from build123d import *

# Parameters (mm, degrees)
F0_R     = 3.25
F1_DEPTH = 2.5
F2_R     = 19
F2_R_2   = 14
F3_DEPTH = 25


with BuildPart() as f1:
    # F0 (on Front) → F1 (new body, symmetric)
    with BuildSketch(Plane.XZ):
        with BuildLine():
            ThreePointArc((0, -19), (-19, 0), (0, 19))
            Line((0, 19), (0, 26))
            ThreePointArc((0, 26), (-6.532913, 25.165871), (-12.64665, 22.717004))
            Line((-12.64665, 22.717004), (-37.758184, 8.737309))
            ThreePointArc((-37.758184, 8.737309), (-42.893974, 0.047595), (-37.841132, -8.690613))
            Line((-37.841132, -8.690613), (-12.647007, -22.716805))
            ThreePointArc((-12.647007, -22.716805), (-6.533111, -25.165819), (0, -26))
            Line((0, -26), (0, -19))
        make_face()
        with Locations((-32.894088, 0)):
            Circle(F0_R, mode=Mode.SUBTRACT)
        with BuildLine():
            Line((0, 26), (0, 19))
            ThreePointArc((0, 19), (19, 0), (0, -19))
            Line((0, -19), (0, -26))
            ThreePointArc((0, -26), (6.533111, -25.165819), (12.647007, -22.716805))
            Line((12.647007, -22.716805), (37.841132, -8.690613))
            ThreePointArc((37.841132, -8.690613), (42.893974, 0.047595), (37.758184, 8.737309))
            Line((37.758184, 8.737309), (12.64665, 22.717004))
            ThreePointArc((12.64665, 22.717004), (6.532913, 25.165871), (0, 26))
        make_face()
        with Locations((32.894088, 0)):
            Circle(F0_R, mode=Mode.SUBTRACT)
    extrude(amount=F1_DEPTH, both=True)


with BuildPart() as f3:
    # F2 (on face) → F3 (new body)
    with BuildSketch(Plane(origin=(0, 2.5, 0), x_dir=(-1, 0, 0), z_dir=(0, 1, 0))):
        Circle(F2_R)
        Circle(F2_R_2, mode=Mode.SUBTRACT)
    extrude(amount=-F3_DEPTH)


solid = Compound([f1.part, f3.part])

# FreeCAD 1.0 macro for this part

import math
import FreeCAD as App
import Part
import Sketcher

doc = App.newDocument("Part")
body = doc.addObject("PartDesign::Body", "Body")

sketch1 = body.newObject("Sketcher::SketchObject", "Sketch")
sketch1.AttachmentSupport = (doc.getObject("XZ_Plane"), [""])
sketch1.MapMode = "FlatFace"
sketch1.addGeometry([
    Part.ArcOfCircle(Part.Circle(App.Vector(0, 0, 0), App.Vector(0, 0, 1), 26), math.radians(-119), math.radians(-90)),
    Part.ArcOfCircle(Part.Circle(App.Vector(0, 0, 0), App.Vector(0, 0, 1), 26), math.radians(-90), math.radians(-61)),
    Part.LineSegment(App.Vector(12.6, -22.7, 0), App.Vector(37.8, -8.7, 0)),
    Part.ArcOfCircle(Part.Circle(App.Vector(32.9, 0, 0), App.Vector(0, 0, 1), 10), math.radians(-60), math.radians(61)),
    Part.LineSegment(App.Vector(37.8, 8.7, 0), App.Vector(12.6, 22.7, 0)),
    Part.ArcOfCircle(Part.Circle(App.Vector(0, 0, 0), App.Vector(0, 0, 1), 26), math.radians(61), math.radians(90)),
    Part.ArcOfCircle(Part.Circle(App.Vector(0, 0, 0), App.Vector(0, 0, 1), 26), math.radians(90), math.radians(119)),
    Part.LineSegment(App.Vector(-12.6, 22.7, 0), App.Vector(-37.8, 8.7, 0)),
    Part.ArcOfCircle(Part.Circle(App.Vector(-32.9, 0, 0), App.Vector(0, 0, 1), 10), math.radians(119), math.radians(240)),
    Part.LineSegment(App.Vector(-37.8, -8.7, 0), App.Vector(-12.6, -22.7, 0)),
    Part.Circle(App.Vector(-32.9, 0, 0), App.Vector(0, 0, 1), 3.2),
    Part.Circle(App.Vector(0, 0, 0), App.Vector(0, 0, 1), 19),
    Part.Circle(App.Vector(32.9, 0, 0), App.Vector(0, 0, 1), 3.2),
], False)
sketch1.addConstraint([
    Sketcher.Constraint("Tangent", 0, 2, 1, 1),
    Sketcher.Constraint("Tangent", 1, 2, 2, 1),
    Sketcher.Constraint("Coincident", 2, 2, 3, 1),
    Sketcher.Constraint("Tangent", 3, 2, 4, 1),
    Sketcher.Constraint("Tangent", 4, 2, 5, 1),
    Sketcher.Constraint("Tangent", 5, 2, 6, 1),
    Sketcher.Constraint("Tangent", 6, 2, 7, 1),
    Sketcher.Constraint("Tangent", 7, 2, 8, 1),
    Sketcher.Constraint("Coincident", 8, 2, 9, 1),
    Sketcher.Constraint("Tangent", 9, 2, 0, 1),
    Sketcher.Constraint("Coincident", 5, 3, -1, 1),
    Sketcher.Constraint("Coincident", 11, 3, -1, 1),
    Sketcher.Constraint("Coincident", 10, 3, 8, 3),
    Sketcher.Constraint("Coincident", 12, 3, 3, 3),
    Sketcher.Constraint("Equal", 0, 1),
    Sketcher.Constraint("Equal", 5, 6),
    Sketcher.Constraint("Equal", 3, 8),
    Sketcher.Constraint("Equal", 10, 12),
    Sketcher.Constraint("Symmetric", 3, 3, 8, 3, -1, 1),
    Sketcher.Constraint("Symmetric", 0, 2, 5, 2, -1, 1),
    Sketcher.Constraint("Symmetric", 2, 2, 8, 2, -2),
    Sketcher.Constraint("PointOnObject", 0, 2, -2),
    Sketcher.Constraint("Horizontal", 1, 2, 9, 2),
    Sketcher.Constraint("Diameter", 11, 38.0),
    Sketcher.Constraint("Radius", 3, 10.000001),
    Sketcher.Constraint("Radius", 5, 25.999999),
    Sketcher.Constraint("Diameter", 10, 6.5),
    Sketcher.Constraint("Radius", 0, 26.000013),
    Sketcher.Constraint("DistanceX", 6, 2, 4, 2, 25.2933),
    Sketcher.Constraint("Distance", 2, 28.83536),
])
pad1 = body.newObject("PartDesign::Pad", "Pad")
pad1.Profile = sketch1
pad1.Length = 5
pad1.Midplane = True
body2 = doc.addObject("PartDesign::Body", "Body001")

sketch2 = body2.newObject("Sketcher::SketchObject", "Sketch001")
sketch2.AttachmentSupport = (doc.getObject("XZ_Plane001"), [""])
sketch2.MapMode = "FlatFace"
sketch2.AttachmentOffset = App.Placement(App.Vector(0, 0, -2.5), App.Rotation())
sketch2.addGeometry([
    Part.Circle(App.Vector(0, 0, 0), App.Vector(0, 0, 1), 19),
    Part.Circle(App.Vector(0, 0, 0), App.Vector(0, 0, 1), 14),
], False)
sketch2.addConstraint([
    Sketcher.Constraint("Coincident", 0, 3, -1, 1),
    Sketcher.Constraint("Coincident", 1, 3, -1, 1),
    Sketcher.Constraint("Diameter", 0, 38.0),
    Sketcher.Constraint("Diameter", 1, 28.0),
])
pad2 = body2.newObject("PartDesign::Pad", "Pad001")
pad2.Profile = sketch2
pad2.Length = 25

doc.recompute()
